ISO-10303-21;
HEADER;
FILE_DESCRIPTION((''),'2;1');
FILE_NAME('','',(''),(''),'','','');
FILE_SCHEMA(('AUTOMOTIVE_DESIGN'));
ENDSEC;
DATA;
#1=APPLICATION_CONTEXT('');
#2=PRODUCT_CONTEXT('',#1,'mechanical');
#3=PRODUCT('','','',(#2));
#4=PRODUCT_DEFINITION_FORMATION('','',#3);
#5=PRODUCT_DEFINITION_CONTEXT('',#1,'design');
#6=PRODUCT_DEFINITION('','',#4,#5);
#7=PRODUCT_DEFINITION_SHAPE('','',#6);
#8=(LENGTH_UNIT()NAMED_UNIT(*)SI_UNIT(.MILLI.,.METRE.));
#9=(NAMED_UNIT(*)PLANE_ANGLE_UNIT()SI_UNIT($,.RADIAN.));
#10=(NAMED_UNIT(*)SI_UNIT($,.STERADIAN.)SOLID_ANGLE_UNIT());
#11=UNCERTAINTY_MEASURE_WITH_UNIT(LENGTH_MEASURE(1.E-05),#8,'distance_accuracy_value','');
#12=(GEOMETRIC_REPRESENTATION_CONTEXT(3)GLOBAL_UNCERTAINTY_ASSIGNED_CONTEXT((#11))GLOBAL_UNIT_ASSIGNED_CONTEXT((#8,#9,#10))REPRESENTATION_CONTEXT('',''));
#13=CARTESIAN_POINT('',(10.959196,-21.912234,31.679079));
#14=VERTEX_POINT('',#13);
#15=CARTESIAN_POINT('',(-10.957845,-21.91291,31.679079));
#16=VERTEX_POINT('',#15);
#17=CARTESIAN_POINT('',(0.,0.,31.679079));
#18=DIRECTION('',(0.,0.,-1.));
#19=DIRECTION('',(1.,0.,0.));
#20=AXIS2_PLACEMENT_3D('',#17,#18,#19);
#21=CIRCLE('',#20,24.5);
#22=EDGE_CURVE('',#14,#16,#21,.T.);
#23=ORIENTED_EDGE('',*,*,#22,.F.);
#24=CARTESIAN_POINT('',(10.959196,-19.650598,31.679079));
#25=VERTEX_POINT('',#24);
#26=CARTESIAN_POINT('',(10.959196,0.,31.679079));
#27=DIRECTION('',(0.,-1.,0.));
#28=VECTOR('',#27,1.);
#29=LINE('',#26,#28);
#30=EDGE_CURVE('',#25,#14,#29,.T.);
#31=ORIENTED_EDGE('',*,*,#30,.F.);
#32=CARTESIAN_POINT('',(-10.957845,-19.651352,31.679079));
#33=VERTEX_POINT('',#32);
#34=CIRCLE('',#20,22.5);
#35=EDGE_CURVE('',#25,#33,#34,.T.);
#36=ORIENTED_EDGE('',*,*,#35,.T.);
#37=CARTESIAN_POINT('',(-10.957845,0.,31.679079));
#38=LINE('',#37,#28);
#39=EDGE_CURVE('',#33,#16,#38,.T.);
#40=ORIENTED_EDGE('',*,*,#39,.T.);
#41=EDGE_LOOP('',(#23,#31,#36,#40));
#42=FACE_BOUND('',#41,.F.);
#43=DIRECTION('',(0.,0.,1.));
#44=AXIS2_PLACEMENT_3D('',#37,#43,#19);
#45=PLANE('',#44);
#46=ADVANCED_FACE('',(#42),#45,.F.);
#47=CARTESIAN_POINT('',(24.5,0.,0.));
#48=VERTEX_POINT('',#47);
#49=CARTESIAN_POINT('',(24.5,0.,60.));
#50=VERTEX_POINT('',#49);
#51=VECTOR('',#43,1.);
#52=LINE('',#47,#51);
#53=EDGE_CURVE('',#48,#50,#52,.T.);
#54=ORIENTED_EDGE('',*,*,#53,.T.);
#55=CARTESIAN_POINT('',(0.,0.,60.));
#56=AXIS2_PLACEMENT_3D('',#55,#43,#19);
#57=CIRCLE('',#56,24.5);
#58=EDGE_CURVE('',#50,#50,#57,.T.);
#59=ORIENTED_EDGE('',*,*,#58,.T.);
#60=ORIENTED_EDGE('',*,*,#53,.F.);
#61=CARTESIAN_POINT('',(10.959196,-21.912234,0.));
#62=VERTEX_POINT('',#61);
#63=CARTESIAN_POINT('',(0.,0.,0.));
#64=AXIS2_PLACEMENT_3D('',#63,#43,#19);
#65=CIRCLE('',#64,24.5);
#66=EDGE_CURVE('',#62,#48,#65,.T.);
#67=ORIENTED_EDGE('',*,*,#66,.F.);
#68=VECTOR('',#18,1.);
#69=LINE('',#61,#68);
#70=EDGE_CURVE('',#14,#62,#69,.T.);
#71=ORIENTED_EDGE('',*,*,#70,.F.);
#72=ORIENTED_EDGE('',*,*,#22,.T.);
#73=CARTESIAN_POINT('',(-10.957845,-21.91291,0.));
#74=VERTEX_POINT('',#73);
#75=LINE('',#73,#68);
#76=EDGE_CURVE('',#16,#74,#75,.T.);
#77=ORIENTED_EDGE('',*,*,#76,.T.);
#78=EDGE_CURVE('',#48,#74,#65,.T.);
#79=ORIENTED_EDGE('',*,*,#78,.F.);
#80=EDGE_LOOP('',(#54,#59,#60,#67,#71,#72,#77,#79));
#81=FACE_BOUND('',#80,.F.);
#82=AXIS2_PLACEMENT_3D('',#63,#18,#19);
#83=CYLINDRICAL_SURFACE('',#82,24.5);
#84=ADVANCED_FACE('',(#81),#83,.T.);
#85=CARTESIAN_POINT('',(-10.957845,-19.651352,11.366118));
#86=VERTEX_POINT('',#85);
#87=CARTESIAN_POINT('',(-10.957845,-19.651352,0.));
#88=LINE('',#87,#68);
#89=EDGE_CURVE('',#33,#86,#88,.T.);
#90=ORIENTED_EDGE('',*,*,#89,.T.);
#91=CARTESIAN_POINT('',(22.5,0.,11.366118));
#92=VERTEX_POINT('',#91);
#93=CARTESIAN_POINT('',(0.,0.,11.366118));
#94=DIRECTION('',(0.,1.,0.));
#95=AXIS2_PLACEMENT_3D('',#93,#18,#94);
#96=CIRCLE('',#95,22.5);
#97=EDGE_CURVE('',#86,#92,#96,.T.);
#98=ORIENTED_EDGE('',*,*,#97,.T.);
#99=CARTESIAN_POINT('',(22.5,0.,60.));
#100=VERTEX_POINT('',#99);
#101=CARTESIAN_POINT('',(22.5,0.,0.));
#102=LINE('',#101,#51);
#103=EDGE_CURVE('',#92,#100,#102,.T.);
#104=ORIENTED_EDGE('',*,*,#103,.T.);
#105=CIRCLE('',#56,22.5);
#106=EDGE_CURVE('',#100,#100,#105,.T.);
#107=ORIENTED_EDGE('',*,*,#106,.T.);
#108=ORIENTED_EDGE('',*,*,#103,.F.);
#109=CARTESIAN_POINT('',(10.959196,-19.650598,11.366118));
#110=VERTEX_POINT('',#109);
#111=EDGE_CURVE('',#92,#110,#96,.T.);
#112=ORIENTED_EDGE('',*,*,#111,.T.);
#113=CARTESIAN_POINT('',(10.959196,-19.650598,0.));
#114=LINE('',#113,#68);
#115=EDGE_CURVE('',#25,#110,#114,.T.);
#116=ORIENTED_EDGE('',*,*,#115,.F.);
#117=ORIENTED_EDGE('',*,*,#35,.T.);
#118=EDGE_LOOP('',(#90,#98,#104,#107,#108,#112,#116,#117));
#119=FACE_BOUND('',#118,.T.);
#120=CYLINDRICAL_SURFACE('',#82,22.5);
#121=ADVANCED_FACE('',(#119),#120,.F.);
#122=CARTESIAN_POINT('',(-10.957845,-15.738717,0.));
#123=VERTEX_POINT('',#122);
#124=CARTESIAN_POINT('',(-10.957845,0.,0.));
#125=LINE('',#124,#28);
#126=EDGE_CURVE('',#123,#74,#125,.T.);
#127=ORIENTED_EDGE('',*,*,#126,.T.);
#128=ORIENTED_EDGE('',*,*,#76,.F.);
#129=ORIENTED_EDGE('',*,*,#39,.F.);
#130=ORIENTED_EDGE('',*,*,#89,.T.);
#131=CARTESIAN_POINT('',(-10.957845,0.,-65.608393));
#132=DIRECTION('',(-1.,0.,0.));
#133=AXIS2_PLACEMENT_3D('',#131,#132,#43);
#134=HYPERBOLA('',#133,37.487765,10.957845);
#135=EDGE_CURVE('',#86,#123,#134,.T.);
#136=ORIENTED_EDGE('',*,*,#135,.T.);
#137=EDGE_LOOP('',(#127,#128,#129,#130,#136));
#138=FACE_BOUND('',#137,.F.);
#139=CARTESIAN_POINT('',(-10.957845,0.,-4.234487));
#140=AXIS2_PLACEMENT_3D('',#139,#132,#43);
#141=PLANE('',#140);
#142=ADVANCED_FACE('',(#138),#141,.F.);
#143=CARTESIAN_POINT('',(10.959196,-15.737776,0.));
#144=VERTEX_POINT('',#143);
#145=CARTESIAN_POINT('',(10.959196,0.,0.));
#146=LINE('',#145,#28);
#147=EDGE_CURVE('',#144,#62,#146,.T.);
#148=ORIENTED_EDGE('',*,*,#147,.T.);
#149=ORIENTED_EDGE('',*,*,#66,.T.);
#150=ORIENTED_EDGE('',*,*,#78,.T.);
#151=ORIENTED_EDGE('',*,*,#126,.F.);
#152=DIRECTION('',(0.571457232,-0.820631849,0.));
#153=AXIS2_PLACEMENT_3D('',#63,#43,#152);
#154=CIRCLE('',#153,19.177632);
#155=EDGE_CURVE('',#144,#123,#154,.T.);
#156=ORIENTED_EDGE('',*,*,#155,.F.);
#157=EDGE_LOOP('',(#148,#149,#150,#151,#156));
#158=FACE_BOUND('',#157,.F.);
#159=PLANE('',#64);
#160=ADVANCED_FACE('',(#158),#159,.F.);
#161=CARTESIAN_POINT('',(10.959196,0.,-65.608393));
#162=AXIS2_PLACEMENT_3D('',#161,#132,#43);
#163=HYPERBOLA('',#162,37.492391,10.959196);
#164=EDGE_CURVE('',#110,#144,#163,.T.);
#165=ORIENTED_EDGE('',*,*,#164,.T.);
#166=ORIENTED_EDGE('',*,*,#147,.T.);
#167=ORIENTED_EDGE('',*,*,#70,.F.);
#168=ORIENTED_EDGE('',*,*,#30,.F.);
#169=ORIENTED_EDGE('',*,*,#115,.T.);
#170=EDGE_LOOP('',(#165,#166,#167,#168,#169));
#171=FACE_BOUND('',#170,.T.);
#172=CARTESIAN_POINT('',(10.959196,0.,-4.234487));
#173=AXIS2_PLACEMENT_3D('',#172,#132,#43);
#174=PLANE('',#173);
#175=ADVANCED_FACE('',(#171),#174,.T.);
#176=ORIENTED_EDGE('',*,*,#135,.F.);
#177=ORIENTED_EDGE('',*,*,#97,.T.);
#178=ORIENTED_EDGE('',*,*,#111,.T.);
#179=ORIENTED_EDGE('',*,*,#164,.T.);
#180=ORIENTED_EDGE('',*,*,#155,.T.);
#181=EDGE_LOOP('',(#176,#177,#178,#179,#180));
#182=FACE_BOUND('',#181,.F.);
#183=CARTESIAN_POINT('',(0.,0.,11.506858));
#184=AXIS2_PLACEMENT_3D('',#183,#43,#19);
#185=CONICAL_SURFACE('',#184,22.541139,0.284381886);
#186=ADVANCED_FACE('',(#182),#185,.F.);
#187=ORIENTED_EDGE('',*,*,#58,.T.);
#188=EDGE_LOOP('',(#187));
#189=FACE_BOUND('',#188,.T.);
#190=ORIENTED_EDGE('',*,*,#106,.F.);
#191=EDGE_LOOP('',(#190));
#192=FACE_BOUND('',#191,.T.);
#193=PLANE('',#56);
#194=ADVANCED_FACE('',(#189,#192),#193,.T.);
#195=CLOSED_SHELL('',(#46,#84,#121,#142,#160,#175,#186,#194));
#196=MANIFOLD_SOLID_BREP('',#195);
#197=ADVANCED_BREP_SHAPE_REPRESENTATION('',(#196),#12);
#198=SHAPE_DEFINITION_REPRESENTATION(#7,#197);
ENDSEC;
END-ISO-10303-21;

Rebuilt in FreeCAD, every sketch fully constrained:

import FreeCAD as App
import Part
import Sketcher
Q = App.Units.Quantity

doc = App.newDocument("Part")
body = doc.addObject("PartDesign::Body", "Body")

sketch1 = doc.addObject("Sketcher::SketchObject", "Sketch")
body.addObject(sketch1)
sketch1.AttachmentSupport = (doc.XY_Plane, [""])
sketch1.MapMode = "FlatFace"
sketch1.addGeometry([
    Part.Circle(App.Vector(0, 0, 0), App.Vector(0, 0, 1), 24),
    Part.Circle(App.Vector(0, 0, 0), App.Vector(0, 0, 1), 22),
], False)
sketch1.addConstraint([
    Sketcher.Constraint("Coincident", 0, 3, -1, 1),
    Sketcher.Constraint("Coincident", 1, 3, -1, 1),
    Sketcher.Constraint("Diameter", 0, Q("49 mm")),
    Sketcher.Constraint("Diameter", 1, Q("45 mm")),
])
pad1 = doc.addObject("PartDesign::Pad", "Pad")
body.addObject(pad1)
pad1.Profile = sketch1
pad1.Length = 60

sketch2 = doc.addObject("Sketcher::SketchObject", "Sketch001")
body.addObject(sketch2)
sketch2.AttachmentSupport = (doc.XZ_Plane, [""])
sketch2.MapMode = "FlatFace"
sketch2.addGeometry([
    Part.LineSegment(App.Vector(23.4, 11.5, 0), App.Vector(22.5, 11.5, 0)),
    Part.LineSegment(App.Vector(22.5, 11.5, 0), App.Vector(19.2, 0, 0)),
    Part.LineSegment(App.Vector(19.2, 0, 0), App.Vector(23.4, 0, 0)),
    Part.LineSegment(App.Vector(23.4, 0, 0), App.Vector(23.4, 11.5, 0)),
], False)
sketch2.addConstraint([
    Sketcher.Constraint("Coincident", 0, 2, 1, 1),
    Sketcher.Constraint("Coincident", 1, 2, 2, 1),
    Sketcher.Constraint("Coincident", 2, 2, 3, 1),
    Sketcher.Constraint("Coincident", 3, 2, 0, 1),
    Sketcher.Constraint("Horizontal", 0),
    Sketcher.Constraint("Horizontal", 2),
    Sketcher.Constraint("Vertical", 3),
    Sketcher.Constraint("PointOnObject", 1, 2, -1),
    Sketcher.Constraint("DistanceX", 0, 2, 0, 1, Q("0.899557 mm")),
    Sketcher.Constraint("DistanceX", 2, 1, 2, 2, Q("4.263064 mm")),
    Sketcher.Constraint("DistanceY", 3, 1, 3, 2, Q("11.506858 mm")),
    Sketcher.Constraint("DistanceX", -1, 1, 0, 2, Q("22.541139 mm")),
])
revolution = doc.addObject("PartDesign::Revolution", "Revolution")
body.addObject(revolution)
revolution.Profile = sketch2
revolution.ReferenceAxis = (sketch2, ["V_Axis"])
revolution.Angle = 360

sketch3 = doc.addObject("Sketcher::SketchObject", "Sketch002")
body.addObject(sketch3)
sketch3.AttachmentSupport = (doc.XZ_Plane, [""])
sketch3.MapMode = "FlatFace"
sketch3.addGeometry([
    Part.LineSegment(App.Vector(-11, 32, 0), App.Vector(-11, -4, 0)),
    Part.LineSegment(App.Vector(-11, -4, 0), App.Vector(11, -4, 0)),
    Part.LineSegment(App.Vector(11, -4, 0), App.Vector(11, 32, 0)),
    Part.LineSegment(App.Vector(11, 32, 0), App.Vector(-11, 32, 0)),
], False)
sketch3.addConstraint([
    Sketcher.Constraint("Coincident", 0, 2, 1, 1),
    Sketcher.Constraint("Coincident", 1, 2, 2, 1),
    Sketcher.Constraint("Coincident", 2, 2, 3, 1),
    Sketcher.Constraint("Coincident", 3, 2, 0, 1),
    Sketcher.Constraint("Vertical", 0),
    Sketcher.Constraint("Horizontal", 1),
    Sketcher.Constraint("Vertical", 2),
    Sketcher.Constraint("Horizontal", 3),
    Sketcher.Constraint("DistanceX", 1, 1, 1, 2, Q("21.917041 mm")),
    Sketcher.Constraint("DistanceY", 0, 2, 0, 1, Q("35.913566 mm")),
    Sketcher.Constraint("DistanceY", -1, 1, 2, 2, Q("31.679079 mm")),
    Sketcher.Constraint("DistanceX", 0, 2, -1, 1, Q("10.957845 mm")),
])
pocket1 = doc.addObject("PartDesign::Pocket", "Pocket")
body.addObject(pocket1)
pocket1.Profile = sketch3
pocket1.Length = 25
pocket1.Reversed = True

doc.recompute()
